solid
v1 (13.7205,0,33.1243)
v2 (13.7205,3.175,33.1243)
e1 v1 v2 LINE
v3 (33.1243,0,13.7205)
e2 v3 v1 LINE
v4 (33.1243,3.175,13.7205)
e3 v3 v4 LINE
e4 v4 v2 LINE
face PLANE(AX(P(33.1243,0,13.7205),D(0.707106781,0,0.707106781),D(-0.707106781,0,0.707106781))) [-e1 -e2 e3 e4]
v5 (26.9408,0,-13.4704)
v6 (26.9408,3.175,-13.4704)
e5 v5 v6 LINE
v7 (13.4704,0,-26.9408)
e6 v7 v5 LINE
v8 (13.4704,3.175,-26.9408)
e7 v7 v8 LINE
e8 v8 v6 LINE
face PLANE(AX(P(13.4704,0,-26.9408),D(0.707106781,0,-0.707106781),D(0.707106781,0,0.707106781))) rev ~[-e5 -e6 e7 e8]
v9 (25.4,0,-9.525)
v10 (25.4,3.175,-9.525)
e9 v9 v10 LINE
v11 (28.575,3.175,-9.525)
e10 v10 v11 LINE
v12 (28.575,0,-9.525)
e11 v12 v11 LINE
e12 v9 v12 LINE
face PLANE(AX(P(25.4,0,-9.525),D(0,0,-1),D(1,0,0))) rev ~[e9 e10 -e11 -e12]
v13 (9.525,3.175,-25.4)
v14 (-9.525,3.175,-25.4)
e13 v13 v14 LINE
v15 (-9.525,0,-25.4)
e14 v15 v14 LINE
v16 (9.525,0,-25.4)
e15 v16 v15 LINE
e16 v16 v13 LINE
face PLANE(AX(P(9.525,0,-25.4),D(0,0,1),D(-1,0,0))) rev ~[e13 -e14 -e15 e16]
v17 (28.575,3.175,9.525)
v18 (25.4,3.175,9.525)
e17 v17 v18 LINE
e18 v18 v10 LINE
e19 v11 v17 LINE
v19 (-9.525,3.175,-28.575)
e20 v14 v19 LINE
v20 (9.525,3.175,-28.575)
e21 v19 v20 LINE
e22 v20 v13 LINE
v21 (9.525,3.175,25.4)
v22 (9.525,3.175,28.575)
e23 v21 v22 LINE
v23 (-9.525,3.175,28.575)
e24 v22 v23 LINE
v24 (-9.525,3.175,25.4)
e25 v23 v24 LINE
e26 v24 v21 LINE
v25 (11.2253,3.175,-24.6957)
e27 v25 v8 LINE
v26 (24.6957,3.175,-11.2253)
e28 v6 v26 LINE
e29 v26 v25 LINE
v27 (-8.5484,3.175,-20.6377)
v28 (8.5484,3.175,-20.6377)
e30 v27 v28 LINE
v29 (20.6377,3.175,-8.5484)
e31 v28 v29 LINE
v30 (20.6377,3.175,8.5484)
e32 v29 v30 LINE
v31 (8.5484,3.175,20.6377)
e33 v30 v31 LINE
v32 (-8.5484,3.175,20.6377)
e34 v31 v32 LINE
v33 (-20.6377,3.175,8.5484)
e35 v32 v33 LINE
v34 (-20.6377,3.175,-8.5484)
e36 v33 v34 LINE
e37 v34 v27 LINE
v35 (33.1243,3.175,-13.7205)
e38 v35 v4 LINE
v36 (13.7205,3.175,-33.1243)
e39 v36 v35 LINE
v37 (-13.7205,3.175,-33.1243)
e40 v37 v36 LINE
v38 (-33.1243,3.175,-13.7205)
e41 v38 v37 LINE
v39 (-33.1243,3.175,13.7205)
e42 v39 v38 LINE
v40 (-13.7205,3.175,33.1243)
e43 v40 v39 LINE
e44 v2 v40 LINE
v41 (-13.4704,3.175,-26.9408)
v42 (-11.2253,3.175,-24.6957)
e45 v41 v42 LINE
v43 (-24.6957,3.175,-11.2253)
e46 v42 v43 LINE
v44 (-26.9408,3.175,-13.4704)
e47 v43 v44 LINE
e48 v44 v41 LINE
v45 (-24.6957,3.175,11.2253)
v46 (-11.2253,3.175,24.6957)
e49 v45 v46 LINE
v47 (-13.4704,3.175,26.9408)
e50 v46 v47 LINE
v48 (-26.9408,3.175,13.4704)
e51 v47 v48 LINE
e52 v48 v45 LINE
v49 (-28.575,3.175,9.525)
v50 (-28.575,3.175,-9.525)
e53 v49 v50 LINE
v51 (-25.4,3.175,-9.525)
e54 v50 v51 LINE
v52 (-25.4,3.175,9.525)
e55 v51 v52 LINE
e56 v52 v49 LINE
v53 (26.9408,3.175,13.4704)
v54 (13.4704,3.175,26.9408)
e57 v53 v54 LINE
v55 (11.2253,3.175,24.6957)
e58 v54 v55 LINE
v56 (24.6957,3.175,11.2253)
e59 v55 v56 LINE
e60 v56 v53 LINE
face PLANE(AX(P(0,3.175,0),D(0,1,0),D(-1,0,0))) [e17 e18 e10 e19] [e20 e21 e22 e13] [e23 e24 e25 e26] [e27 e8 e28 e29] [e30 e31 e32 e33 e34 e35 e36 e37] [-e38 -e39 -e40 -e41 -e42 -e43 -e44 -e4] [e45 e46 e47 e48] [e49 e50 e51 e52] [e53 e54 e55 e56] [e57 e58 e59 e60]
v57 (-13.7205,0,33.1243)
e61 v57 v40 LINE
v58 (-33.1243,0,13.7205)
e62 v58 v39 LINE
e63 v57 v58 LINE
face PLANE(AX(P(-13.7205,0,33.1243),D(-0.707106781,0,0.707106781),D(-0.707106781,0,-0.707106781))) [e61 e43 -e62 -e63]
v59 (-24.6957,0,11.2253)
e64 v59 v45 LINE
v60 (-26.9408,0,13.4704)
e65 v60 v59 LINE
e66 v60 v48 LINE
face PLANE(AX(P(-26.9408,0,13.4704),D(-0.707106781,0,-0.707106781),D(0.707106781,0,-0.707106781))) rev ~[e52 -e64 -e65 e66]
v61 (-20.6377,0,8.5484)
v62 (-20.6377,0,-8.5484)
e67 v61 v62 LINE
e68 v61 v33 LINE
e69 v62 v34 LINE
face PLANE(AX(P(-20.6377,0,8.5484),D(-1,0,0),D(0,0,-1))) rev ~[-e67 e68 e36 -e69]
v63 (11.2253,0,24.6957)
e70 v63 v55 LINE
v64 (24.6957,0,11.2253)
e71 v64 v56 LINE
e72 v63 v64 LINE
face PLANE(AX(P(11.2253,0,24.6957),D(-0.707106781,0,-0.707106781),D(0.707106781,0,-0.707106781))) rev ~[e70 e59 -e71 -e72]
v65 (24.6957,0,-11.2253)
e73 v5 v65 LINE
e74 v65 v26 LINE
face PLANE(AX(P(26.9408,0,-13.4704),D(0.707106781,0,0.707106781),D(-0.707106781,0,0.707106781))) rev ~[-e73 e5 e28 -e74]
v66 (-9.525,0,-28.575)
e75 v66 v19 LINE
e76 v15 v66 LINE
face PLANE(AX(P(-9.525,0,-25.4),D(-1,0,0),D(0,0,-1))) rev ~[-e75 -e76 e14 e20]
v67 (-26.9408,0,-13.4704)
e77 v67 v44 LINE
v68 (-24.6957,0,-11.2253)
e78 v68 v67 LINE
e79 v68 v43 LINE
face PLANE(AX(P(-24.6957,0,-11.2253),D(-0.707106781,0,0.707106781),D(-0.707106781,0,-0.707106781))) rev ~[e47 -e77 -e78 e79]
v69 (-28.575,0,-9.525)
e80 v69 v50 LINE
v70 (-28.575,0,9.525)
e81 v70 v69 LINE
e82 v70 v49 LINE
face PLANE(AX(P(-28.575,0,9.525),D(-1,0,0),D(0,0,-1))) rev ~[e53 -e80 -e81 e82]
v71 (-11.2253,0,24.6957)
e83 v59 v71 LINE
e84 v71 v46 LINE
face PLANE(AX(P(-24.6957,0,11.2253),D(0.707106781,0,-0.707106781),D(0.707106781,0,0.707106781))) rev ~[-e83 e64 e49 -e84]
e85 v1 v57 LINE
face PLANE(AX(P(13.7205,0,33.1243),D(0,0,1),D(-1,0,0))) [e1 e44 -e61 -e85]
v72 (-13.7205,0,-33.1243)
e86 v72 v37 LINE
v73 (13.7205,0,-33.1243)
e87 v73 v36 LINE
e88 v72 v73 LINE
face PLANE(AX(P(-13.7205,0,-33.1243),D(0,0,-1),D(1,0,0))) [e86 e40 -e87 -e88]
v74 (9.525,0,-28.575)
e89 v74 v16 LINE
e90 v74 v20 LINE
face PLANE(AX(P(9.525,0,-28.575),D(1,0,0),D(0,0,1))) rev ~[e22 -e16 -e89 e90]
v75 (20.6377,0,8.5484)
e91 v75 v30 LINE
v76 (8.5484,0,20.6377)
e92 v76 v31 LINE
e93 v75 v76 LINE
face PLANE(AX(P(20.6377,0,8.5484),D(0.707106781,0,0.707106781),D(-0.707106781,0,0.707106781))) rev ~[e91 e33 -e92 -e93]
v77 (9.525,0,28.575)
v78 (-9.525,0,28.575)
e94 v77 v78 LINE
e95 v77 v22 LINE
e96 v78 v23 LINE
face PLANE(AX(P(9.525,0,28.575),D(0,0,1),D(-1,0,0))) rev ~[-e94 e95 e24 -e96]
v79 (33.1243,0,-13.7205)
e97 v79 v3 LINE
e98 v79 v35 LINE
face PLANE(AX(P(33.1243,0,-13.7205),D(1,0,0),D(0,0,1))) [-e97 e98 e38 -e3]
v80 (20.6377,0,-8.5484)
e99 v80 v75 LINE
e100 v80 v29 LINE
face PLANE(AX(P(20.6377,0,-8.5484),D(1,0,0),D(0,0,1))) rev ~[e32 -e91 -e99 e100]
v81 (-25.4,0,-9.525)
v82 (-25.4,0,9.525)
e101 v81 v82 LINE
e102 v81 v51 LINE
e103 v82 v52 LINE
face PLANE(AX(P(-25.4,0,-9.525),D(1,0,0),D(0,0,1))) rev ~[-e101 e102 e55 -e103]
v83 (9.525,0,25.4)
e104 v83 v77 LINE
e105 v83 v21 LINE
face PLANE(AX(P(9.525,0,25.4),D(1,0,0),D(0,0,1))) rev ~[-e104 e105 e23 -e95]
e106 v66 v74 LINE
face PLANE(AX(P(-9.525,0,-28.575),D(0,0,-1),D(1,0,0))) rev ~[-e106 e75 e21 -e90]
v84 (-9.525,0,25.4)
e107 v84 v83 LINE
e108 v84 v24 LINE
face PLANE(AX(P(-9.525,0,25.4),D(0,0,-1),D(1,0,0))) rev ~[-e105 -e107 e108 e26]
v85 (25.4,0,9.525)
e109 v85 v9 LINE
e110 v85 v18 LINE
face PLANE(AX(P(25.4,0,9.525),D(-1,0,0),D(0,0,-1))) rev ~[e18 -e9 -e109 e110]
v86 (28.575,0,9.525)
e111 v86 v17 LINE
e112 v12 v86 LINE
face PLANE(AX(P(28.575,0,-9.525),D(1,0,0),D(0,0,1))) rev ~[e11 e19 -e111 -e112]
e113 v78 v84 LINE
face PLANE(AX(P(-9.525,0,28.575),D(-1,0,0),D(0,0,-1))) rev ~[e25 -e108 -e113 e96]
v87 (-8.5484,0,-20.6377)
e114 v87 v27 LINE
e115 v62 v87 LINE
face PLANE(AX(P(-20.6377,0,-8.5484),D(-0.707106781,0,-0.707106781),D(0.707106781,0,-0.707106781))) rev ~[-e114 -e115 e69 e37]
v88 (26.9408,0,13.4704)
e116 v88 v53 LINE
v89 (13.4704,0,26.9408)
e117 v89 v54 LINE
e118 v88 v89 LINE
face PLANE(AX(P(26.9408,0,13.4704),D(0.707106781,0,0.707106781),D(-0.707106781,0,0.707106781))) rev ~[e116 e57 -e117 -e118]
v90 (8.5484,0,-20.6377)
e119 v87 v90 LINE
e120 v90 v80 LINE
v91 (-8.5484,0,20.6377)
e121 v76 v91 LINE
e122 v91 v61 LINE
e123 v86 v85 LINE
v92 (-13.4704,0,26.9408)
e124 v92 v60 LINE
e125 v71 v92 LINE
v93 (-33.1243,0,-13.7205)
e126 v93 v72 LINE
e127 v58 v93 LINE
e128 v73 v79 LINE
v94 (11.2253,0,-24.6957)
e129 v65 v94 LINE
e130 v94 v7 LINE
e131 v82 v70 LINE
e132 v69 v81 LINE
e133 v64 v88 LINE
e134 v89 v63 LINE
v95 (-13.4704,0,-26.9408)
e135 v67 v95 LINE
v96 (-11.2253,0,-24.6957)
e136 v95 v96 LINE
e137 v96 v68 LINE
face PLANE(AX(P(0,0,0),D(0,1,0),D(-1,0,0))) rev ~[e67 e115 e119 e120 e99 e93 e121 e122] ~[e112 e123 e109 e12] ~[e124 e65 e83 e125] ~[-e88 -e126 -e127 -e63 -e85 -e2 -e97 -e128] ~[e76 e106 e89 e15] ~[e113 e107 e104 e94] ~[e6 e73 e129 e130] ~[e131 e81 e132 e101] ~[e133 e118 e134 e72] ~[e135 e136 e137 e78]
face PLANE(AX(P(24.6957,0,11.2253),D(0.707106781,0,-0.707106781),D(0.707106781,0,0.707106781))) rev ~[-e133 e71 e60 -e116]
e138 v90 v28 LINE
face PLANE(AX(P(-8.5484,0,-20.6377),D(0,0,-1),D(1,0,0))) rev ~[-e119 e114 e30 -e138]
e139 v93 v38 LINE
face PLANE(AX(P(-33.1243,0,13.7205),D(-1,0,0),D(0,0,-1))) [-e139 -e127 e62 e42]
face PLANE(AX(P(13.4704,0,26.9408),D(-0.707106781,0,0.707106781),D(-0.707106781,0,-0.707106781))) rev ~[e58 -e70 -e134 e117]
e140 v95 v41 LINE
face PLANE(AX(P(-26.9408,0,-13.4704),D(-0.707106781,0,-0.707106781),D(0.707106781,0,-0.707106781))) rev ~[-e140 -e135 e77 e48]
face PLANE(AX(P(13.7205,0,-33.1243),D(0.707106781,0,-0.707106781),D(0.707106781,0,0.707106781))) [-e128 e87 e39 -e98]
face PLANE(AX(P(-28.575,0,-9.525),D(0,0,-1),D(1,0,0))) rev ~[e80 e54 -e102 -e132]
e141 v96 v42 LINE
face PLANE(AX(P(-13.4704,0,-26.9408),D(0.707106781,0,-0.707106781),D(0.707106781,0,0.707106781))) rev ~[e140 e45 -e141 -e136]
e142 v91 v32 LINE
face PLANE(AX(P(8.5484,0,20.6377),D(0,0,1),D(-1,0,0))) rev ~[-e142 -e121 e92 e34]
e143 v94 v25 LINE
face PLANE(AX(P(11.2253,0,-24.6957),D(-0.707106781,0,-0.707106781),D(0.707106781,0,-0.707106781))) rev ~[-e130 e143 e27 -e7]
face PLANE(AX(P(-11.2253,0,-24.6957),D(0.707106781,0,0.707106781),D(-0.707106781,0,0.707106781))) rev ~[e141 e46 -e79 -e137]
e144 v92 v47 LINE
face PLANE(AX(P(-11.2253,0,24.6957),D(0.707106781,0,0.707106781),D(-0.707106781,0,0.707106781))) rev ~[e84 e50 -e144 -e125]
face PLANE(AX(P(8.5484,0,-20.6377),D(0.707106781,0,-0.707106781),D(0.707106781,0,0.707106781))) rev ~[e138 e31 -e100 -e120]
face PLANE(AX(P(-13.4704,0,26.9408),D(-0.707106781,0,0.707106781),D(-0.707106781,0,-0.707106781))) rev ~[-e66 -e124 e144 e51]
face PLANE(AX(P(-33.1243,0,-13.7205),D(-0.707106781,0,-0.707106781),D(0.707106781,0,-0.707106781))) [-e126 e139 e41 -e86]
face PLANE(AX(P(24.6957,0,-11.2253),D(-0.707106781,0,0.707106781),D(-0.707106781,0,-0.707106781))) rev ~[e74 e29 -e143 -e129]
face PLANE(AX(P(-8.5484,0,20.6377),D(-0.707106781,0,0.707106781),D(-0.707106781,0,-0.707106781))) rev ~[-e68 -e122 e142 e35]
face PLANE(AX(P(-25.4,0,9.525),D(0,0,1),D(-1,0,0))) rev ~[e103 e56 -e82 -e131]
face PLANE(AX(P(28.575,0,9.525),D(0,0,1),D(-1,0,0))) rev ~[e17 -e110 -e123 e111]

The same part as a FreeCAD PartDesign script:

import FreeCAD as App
import Part
import Sketcher
Q = App.Units.Quantity

doc = App.newDocument("Part")
body = doc.addObject("PartDesign::Body", "Body")

# Sketch on XZ plane
sketch1 = doc.addObject("Sketcher::SketchObject", "Sketch")
body.addObject(sketch1)
sketch1.AttachmentSupport = (doc.XZ_Plane, [""])
sketch1.MapMode = "FlatFace"
sketch1.addGeometry([
    Part.LineSegment(App.Vector(33.1, 13.7, 0), App.Vector(33.1, -13.7, 0)),  # 0
    Part.LineSegment(App.Vector(33.1, -13.7, 0), App.Vector(13.7, -33.1, 0)),  # 1
    Part.LineSegment(App.Vector(13.7, -33.1, 0), App.Vector(-13.7, -33.1, 0)),  # 2
    Part.LineSegment(App.Vector(-13.7, -33.1, 0), App.Vector(-33.1, -13.7, 0)),  # 3
    Part.LineSegment(App.Vector(-33.1, -13.7, 0), App.Vector(-33.1, 13.7, 0)),  # 4
    Part.LineSegment(App.Vector(-33.1, 13.7, 0), App.Vector(-13.7, 33.1, 0)),  # 5
    Part.LineSegment(App.Vector(-13.7, 33.1, 0), App.Vector(13.7, 33.1, 0)),  # 6
    Part.LineSegment(App.Vector(13.7, 33.1, 0), App.Vector(33.1, 13.7, 0)),  # 7
    Part.LineSegment(App.Vector(11.2, -24.7, 0), App.Vector(13.5, -26.9, 0)),  # 8
    Part.LineSegment(App.Vector(13.5, -26.9, 0), App.Vector(26.9, -13.5, 0)),  # 9
    Part.LineSegment(App.Vector(26.9, -13.5, 0), App.Vector(24.7, -11.2, 0)),  # 10
    Part.LineSegment(App.Vector(24.7, -11.2, 0), App.Vector(11.2, -24.7, 0)),  # 11
    Part.LineSegment(App.Vector(-9.5, -25.4, 0), App.Vector(-9.5, -28.6, 0)),  # 12
    Part.LineSegment(App.Vector(-9.5, -28.6, 0), App.Vector(9.5, -28.6, 0)),  # 13
    Part.LineSegment(App.Vector(9.5, -28.6, 0), App.Vector(9.5, -25.4, 0)),  # 14
    Part.LineSegment(App.Vector(9.5, -25.4, 0), App.Vector(-9.5, -25.4, 0)),  # 15
    Part.LineSegment(App.Vector(-24.7, -11.2, 0), App.Vector(-26.9, -13.5, 0)),  # 16
    Part.LineSegment(App.Vector(-26.9, -13.5, 0), App.Vector(-13.5, -26.9, 0)),  # 17
    Part.LineSegment(App.Vector(-13.5, -26.9, 0), App.Vector(-11.2, -24.7, 0)),  # 18
    Part.LineSegment(App.Vector(-11.2, -24.7, 0), App.Vector(-24.7, -11.2, 0)),  # 19
    Part.LineSegment(App.Vector(25.4, -9.5, 0), App.Vector(28.6, -9.5, 0)),  # 20
    Part.LineSegment(App.Vector(28.6, -9.5, 0), App.Vector(28.6, 9.5, 0)),  # 21
    Part.LineSegment(App.Vector(28.6, 9.5, 0), App.Vector(25.4, 9.5, 0)),  # 22
    Part.LineSegment(App.Vector(25.4, 9.5, 0), App.Vector(25.4, -9.5, 0)),  # 23
    Part.LineSegment(App.Vector(24.7, 11.2, 0), App.Vector(26.9, 13.5, 0)),  # 24
    Part.LineSegment(App.Vector(26.9, 13.5, 0), App.Vector(13.5, 26.9, 0)),  # 25
    Part.LineSegment(App.Vector(13.5, 26.9, 0), App.Vector(11.2, 24.7, 0)),  # 26
    Part.LineSegment(App.Vector(11.2, 24.7, 0), App.Vector(24.7, 11.2, 0)),  # 27
    Part.LineSegment(App.Vector(8.5, -20.6, 0), App.Vector(20.6, -8.5, 0)),  # 28
    Part.LineSegment(App.Vector(20.6, -8.5, 0), App.Vector(20.6, 8.5, 0)),  # 29
    Part.LineSegment(App.Vector(20.6, 8.5, 0), App.Vector(8.5, 20.6, 0)),  # 30
    Part.LineSegment(App.Vector(8.5, 20.6, 0), App.Vector(-8.5, 20.6, 0)),  # 31
    Part.LineSegment(App.Vector(-8.5, 20.6, 0), App.Vector(-20.6, 8.5, 0)),  # 32
    Part.LineSegment(App.Vector(-20.6, 8.5, 0), App.Vector(-20.6, -8.5, 0)),  # 33
    Part.LineSegment(App.Vector(-20.6, -8.5, 0), App.Vector(-8.5, -20.6, 0)),  # 34
    Part.LineSegment(App.Vector(-8.5, -20.6, 0), App.Vector(8.5, -20.6, 0)),  # 35
    Part.LineSegment(App.Vector(-25.4, 9.5, 0), App.Vector(-28.6, 9.5, 0)),  # 36
    Part.LineSegment(App.Vector(-28.6, 9.5, 0), App.Vector(-28.6, -9.5, 0)),  # 37
    Part.LineSegment(App.Vector(-28.6, -9.5, 0), App.Vector(-25.4, -9.5, 0)),  # 38
    Part.LineSegment(App.Vector(-25.4, -9.5, 0), App.Vector(-25.4, 9.5, 0)),  # 39
    Part.LineSegment(App.Vector(9.5, 25.4, 0), App.Vector(9.5, 28.6, 0)),  # 40
    Part.LineSegment(App.Vector(9.5, 28.6, 0), App.Vector(-9.5, 28.6, 0)),  # 41
    Part.LineSegment(App.Vector(-9.5, 28.6, 0), App.Vector(-9.5, 25.4, 0)),  # 42
    Part.LineSegment(App.Vector(-9.5, 25.4, 0), App.Vector(9.5, 25.4, 0)),  # 43
    Part.LineSegment(App.Vector(-11.2, 24.7, 0), App.Vector(-13.5, 26.9, 0)),  # 44
    Part.LineSegment(App.Vector(-13.5, 26.9, 0), App.Vector(-26.9, 13.5, 0)),  # 45
    Part.LineSegment(App.Vector(-26.9, 13.5, 0), App.Vector(-24.7, 11.2, 0)),  # 46
    Part.LineSegment(App.Vector(-24.7, 11.2, 0), App.Vector(-11.2, 24.7, 0)),  # 47
], False)
sketch1.addConstraint([
    Sketcher.Constraint("Coincident", 0, 2, 1, 1),
    Sketcher.Constraint("Coincident", 1, 2, 2, 1),
    Sketcher.Constraint("Coincident", 2, 2, 3, 1),
    Sketcher.Constraint("Coincident", 3, 2, 4, 1),
    Sketcher.Constraint("Coincident", 4, 2, 5, 1),
    Sketcher.Constraint("Coincident", 5, 2, 6, 1),
    Sketcher.Constraint("Coincident", 6, 2, 7, 1),
    Sketcher.Constraint("Coincident", 7, 2, 0, 1),
    Sketcher.Constraint("Coincident", 8, 2, 9, 1),
    Sketcher.Constraint("Coincident", 9, 2, 10, 1),
    Sketcher.Constraint("Coincident", 10, 2, 11, 1),
    Sketcher.Constraint("Coincident", 11, 2, 8, 1),
    Sketcher.Constraint("Coincident", 12, 2, 13, 1),
    Sketcher.Constraint("Coincident", 13, 2, 14, 1),
    Sketcher.Constraint("Coincident", 14, 2, 15, 1),
    Sketcher.Constraint("Coincident", 15, 2, 12, 1),
    Sketcher.Constraint("Coincident", 16, 2, 17, 1),
    Sketcher.Constraint("Coincident", 17, 2, 18, 1),
    Sketcher.Constraint("Coincident", 18, 2, 19, 1),
    Sketcher.Constraint("Coincident", 19, 2, 16, 1),
    Sketcher.Constraint("Coincident", 20, 2, 21, 1),
    Sketcher.Constraint("Coincident", 21, 2, 22, 1),
    Sketcher.Constraint("Coincident", 22, 2, 23, 1),
    Sketcher.Constraint("Coincident", 23, 2, 20, 1),
    Sketcher.Constraint("Coincident", 24, 2, 25, 1),
    Sketcher.Constraint("Coincident", 25, 2, 26, 1),
    Sketcher.Constraint("Coincident", 26, 2, 27, 1),
    Sketcher.Constraint("Coincident", 27, 2, 24, 1),
    Sketcher.Constraint("Coincident", 28, 2, 29, 1),
    Sketcher.Constraint("Coincident", 29, 2, 30, 1),
    Sketcher.Constraint("Coincident", 30, 2, 31, 1),
    Sketcher.Constraint("Coincident", 31, 2, 32, 1),
    Sketcher.Constraint("Coincident", 32, 2, 33, 1),
    Sketcher.Constraint("Coincident", 33, 2, 34, 1),
    Sketcher.Constraint("Coincident", 34, 2, 35, 1),
    Sketcher.Constraint("Coincident", 35, 2, 28, 1),
    Sketcher.Constraint("Coincident", 36, 2, 37, 1),
    Sketcher.Constraint("Coincident", 37, 2, 38, 1),
    Sketcher.Constraint("Coincident", 38, 2, 39, 1),
    Sketcher.Constraint("Coincident", 39, 2, 36, 1),
    Sketcher.Constraint("Coincident", 40, 2, 41, 1),
    Sketcher.Constraint("Coincident", 41, 2, 42, 1),
    Sketcher.Constraint("Coincident", 42, 2, 43, 1),
    Sketcher.Constraint("Coincident", 43, 2, 40, 1),
    Sketcher.Constraint("Coincident", 44, 2, 45, 1),
    Sketcher.Constraint("Coincident", 45, 2, 46, 1),
    Sketcher.Constraint("Coincident", 46, 2, 47, 1),
    Sketcher.Constraint("Coincident", 47, 2, 44, 1),
    Sketcher.Constraint("Vertical", 0),
    Sketcher.Constraint("Horizontal", 2),
    Sketcher.Constraint("Vertical", 4),
    Sketcher.Constraint("Horizontal", 6),
    Sketcher.Constraint("Vertical", 12),
    Sketcher.Constraint("Horizontal", 13),
    Sketcher.Constraint("Vertical", 14),
    Sketcher.Constraint("Horizontal", 15),
    Sketcher.Constraint("Horizontal", 20),
    Sketcher.Constraint("Vertical", 21),
    Sketcher.Constraint("Horizontal", 22),
    Sketcher.Constraint("Vertical", 23),
    Sketcher.Constraint("Vertical", 29),
    Sketcher.Constraint("Horizontal", 31),
    Sketcher.Constraint("Vertical", 33),
    Sketcher.Constraint("Horizontal", 35),
    Sketcher.Constraint("Horizontal", 36),
    Sketcher.Constraint("Vertical", 37),
    Sketcher.Constraint("Horizontal", 38),
    Sketcher.Constraint("Vertical", 39),
    Sketcher.Constraint("Vertical", 40),
    Sketcher.Constraint("Horizontal", 41),
    Sketcher.Constraint("Vertical", 42),
    Sketcher.Constraint("Horizontal", 43),
    Sketcher.Constraint("Symmetric", 0, 2, 4, 2, -1, 1),
    Sketcher.Constraint("Symmetric", 1, 2, 5, 2, -1, 1),
    Sketcher.Constraint("Symmetric", 16, 2, 24, 2, -1, 1),
    Sketcher.Constraint("Symmetric", 17, 2, 25, 2, -1, 1),
    Sketcher.Constraint("Symmetric", 18, 2, 26, 2, -1, 1),
    Sketcher.Constraint("Symmetric", 19, 2, 27, 2, -1, 1),
    Sketcher.Constraint("Symmetric", 28, 2, 32, 2, -1, 1),
    Sketcher.Constraint("Symmetric", 30, 2, 34, 2, -1, 1),
    Sketcher.Constraint("Symmetric", 20, 2, 36, 2, -1, 1),
    Sketcher.Constraint("Symmetric", 22, 2, 38, 2, -1, 1),
    Sketcher.Constraint("Symmetric", 12, 2, 40, 2, -1, 1),
    Sketcher.Constraint("Symmetric", 14, 2, 42, 2, -1, 1),
    Sketcher.Constraint("Symmetric", 8, 2, 44, 2, -1, 1),
    Sketcher.Constraint("Symmetric", 9, 2, 45, 2, -1, 1),
    Sketcher.Constraint("Symmetric", 10, 2, 46, 2, -1, 1),
    Sketcher.Constraint("Symmetric", 11, 2, 47, 2, -1, 1),
    Sketcher.Constraint("Symmetric", 9, 2, 16, 2, -2),
    Sketcher.Constraint("Symmetric", 8, 2, 17, 2, -2),
    Sketcher.Constraint("Symmetric", 11, 2, 18, 2, -2),
    Sketcher.Constraint("Symmetric", 10, 2, 19, 2, -2),
    Sketcher.Constraint("Perpendicular", 1, 3),
    Sketcher.Constraint("Perpendicular", 5, 7),
    Sketcher.Constraint("Parallel", 7, 8),
    Sketcher.Constraint("Perpendicular", 8, 9),
    Sketcher.Constraint("Perpendicular", 9, 10),
    Sketcher.Constraint("Perpendicular", 10, 11),
    Sketcher.Constraint("Parallel", 11, 16),
    Sketcher.Constraint("Perpendicular", 27, 28),
    Sketcher.Constraint("Perpendicular", 28, 30),
    Sketcher.Constraint("Perpendicular", 30, 32),
    Sketcher.Constraint("Perpendicular", 32, 34),
    Sketcher.Constraint("Horizontal", 0, 2, 3, 2),
    Sketcher.Constraint("Horizontal", 4, 2, 7, 2),
    Sketcher.Constraint("Horizontal", 29, 2, 32, 2),
    Sketcher.Constraint("Horizontal", 22, 2, 36, 2),
    Sketcher.Constraint("Vertical", 14, 2, 40, 2),
    Sketcher.Constraint("Equal", 6, 0),
    Sketcher.Constraint("Equal", 38, 12),
    Sketcher.Constraint("Equal", 43, 21),
    Sketcher.Constraint("Equal", 35, 29),
    Sketcher.Constraint("DistanceX", 13, 1, 13, 2, Q("0.75 in")),
    Sketcher.Constraint("Distance", 9, Q("0.75 in")),
    Sketcher.Constraint("DistanceX", 20, 1, 20, 2, Q("0.125 in")),
    Sketcher.Constraint("Distance", 8, Q("0.125 in")),
    Sketcher.Constraint("DistanceY", 12, 2, -1, 1, Q("1.125 in")),
    Sketcher.Constraint("DistanceX", -1, 1, 20, 2, Q("1.125 in")),
    Sketcher.Constraint("DistanceX", 31, 2, 31, 1, Q("0.6731 in")),
    Sketcher.Constraint("DistanceX", -1, 1, 28, 2, Q("0.8125 in")),
    Sketcher.Constraint("DistanceX", 2, 2, 2, 1, Q("27.441 mm")),
    Sketcher.Constraint("DistanceX", -1, 1, 0, 2, Q("1.3041 in")),
    Sketcher.Constraint("DistanceX", 2, 2, 8, 2, Q("1.0705 in")),
    Sketcher.Constraint("DistanceY", 9, 2, 7, 2, Q("1.0705 in")),
])
pad1 = doc.addObject("PartDesign::Pad", "Pad")
body.addObject(pad1)
pad1.Profile = sketch1
pad1.Length = Q("0.125 in")
pad1.Reversed = True

doc.recompute()
